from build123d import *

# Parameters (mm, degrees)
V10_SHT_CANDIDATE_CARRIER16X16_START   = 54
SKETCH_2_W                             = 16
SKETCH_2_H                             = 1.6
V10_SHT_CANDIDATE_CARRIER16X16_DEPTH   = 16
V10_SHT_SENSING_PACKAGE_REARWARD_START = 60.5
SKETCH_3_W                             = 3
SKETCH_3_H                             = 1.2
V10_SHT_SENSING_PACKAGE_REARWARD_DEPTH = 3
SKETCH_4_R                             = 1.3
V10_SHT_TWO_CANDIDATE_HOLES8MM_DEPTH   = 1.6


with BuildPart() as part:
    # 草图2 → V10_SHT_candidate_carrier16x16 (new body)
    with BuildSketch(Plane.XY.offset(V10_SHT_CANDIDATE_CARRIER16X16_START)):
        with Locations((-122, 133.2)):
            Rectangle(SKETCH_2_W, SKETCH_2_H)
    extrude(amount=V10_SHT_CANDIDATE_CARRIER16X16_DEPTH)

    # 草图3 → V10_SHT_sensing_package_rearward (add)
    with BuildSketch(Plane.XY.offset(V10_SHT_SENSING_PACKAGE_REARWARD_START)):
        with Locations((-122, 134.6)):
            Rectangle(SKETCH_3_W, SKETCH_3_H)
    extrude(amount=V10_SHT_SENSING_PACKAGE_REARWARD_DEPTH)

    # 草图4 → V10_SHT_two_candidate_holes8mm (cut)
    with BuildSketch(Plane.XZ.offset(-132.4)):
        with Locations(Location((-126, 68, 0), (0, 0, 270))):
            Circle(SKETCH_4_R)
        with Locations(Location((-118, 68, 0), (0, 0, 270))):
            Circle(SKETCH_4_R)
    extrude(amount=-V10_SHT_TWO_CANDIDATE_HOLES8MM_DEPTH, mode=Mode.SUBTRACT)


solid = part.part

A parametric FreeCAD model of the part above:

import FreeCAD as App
import Part
import Sketcher
Q = App.Units.Quantity


def add_polygon(sketch, points):
    """Adds a closed chain of lines whose ends are joined by coincident constraints."""
    first, n = sketch.GeometryCount, len(points)
    for a, b in zip(points, points[1:] + points[:1]):
        sketch.addGeometry(Part.LineSegment(App.Vector(*a, 0), App.Vector(*b, 0)), False)
    for i in range(n):
        sketch.addConstraint(Sketcher.Constraint("Coincident", first + i, 2, first + (i + 1) % n, 1))

doc = App.newDocument("Part")
body = doc.addObject("PartDesign::Body", "Body")

sketch1 = body.newObject("Sketcher::SketchObject", "Sketch")
sketch1.AttachmentSupport = (doc.getObject("XY_Plane"), [""])
sketch1.MapMode = "FlatFace"
sketch1.AttachmentOffset = App.Placement(App.Vector(0, 0, 54), App.Rotation())
add_polygon(sketch1, [(-130, 134), (-130, 132.4), (-114, 132.4), (-114, 134)])
sketch1.addConstraint([
    Sketcher.Constraint("Vertical", 0),
    Sketcher.Constraint("Horizontal", 1),
    Sketcher.Constraint("Vertical", 2),
    Sketcher.Constraint("Horizontal", 3),
    Sketcher.Constraint("DistanceX", 1, 1, 1, 2, Q("16 mm")),
    Sketcher.Constraint("DistanceY", 0, 2, 0, 1, Q("1.6 mm")),
    Sketcher.Constraint("DistanceX", 0, 2, -1, 1, Q("130 mm")),
    Sketcher.Constraint("DistanceY", -1, 1, 2, 2, Q("134 mm")),
])
pad1 = body.newObject("PartDesign::Pad", "Pad")
pad1.Profile = sketch1
pad1.Length = 16

sketch2 = body.newObject("Sketcher::SketchObject", "Sketch001")
sketch2.AttachmentSupport = (doc.getObject("XY_Plane"), [""])
sketch2.MapMode = "FlatFace"
sketch2.AttachmentOffset = App.Placement(App.Vector(0, 0, 60.5), App.Rotation())
add_polygon(sketch2, [(-123.5, 135.2), (-123.5, 134), (-120.5, 134), (-120.5, 135.2)])
sketch2.addConstraint([
    Sketcher.Constraint("Vertical", 0),
    Sketcher.Constraint("Horizontal", 1),
    Sketcher.Constraint("Vertical", 2),
    Sketcher.Constraint("Horizontal", 3),
    Sketcher.Constraint("DistanceX", 1, 1, 1, 2, Q("3 mm")),
    Sketcher.Constraint("DistanceY", 0, 2, 0, 1, Q("1.2 mm")),
    Sketcher.Constraint("DistanceY", -1, 1, 0, 2, Q("134 mm")),
    Sketcher.Constraint("DistanceX", 0, 2, -1, 1, Q("123.5 mm")),
])
pad2 = body.newObject("PartDesign::Pad", "Pad001")
pad2.Profile = sketch2
pad2.Length = 3

sketch3 = body.newObject("Sketcher::SketchObject", "Sketch002")
sketch3.AttachmentSupport = (doc.getObject("XZ_Plane"), [""])
sketch3.MapMode = "FlatFace"
sketch3.AttachmentOffset = App.Placement(App.Vector(0, 0, -132.4), App.Rotation())
sketch3.addGeometry([
    Part.Circle(App.Vector(-126, 68, 0), App.Vector(0, 0, 1), 1.3),
    Part.Circle(App.Vector(-118, 68, 0), App.Vector(0, 0, 1), 1.3),
], False)
sketch3.addConstraint([
    Sketcher.Constraint("Equal", 0, 1),
    Sketcher.Constraint("Horizontal", 0, 3, 1, 3),
    Sketcher.Constraint("Diameter", 0, Q("2.6 mm")),
    Sketcher.Constraint("DistanceX", 0, 3, -1, 1, Q("126 mm")),
    Sketcher.Constraint("DistanceY", -1, 1, 0, 3, Q("68 mm")),
    Sketcher.Constraint("DistanceX", 1, 3, -1, 1, Q("118 mm")),
])
pocket1 = body.newObject("PartDesign::Pocket", "Pocket")
pocket1.Profile = sketch3
pocket1.Length = 1.6

doc.recompute()
